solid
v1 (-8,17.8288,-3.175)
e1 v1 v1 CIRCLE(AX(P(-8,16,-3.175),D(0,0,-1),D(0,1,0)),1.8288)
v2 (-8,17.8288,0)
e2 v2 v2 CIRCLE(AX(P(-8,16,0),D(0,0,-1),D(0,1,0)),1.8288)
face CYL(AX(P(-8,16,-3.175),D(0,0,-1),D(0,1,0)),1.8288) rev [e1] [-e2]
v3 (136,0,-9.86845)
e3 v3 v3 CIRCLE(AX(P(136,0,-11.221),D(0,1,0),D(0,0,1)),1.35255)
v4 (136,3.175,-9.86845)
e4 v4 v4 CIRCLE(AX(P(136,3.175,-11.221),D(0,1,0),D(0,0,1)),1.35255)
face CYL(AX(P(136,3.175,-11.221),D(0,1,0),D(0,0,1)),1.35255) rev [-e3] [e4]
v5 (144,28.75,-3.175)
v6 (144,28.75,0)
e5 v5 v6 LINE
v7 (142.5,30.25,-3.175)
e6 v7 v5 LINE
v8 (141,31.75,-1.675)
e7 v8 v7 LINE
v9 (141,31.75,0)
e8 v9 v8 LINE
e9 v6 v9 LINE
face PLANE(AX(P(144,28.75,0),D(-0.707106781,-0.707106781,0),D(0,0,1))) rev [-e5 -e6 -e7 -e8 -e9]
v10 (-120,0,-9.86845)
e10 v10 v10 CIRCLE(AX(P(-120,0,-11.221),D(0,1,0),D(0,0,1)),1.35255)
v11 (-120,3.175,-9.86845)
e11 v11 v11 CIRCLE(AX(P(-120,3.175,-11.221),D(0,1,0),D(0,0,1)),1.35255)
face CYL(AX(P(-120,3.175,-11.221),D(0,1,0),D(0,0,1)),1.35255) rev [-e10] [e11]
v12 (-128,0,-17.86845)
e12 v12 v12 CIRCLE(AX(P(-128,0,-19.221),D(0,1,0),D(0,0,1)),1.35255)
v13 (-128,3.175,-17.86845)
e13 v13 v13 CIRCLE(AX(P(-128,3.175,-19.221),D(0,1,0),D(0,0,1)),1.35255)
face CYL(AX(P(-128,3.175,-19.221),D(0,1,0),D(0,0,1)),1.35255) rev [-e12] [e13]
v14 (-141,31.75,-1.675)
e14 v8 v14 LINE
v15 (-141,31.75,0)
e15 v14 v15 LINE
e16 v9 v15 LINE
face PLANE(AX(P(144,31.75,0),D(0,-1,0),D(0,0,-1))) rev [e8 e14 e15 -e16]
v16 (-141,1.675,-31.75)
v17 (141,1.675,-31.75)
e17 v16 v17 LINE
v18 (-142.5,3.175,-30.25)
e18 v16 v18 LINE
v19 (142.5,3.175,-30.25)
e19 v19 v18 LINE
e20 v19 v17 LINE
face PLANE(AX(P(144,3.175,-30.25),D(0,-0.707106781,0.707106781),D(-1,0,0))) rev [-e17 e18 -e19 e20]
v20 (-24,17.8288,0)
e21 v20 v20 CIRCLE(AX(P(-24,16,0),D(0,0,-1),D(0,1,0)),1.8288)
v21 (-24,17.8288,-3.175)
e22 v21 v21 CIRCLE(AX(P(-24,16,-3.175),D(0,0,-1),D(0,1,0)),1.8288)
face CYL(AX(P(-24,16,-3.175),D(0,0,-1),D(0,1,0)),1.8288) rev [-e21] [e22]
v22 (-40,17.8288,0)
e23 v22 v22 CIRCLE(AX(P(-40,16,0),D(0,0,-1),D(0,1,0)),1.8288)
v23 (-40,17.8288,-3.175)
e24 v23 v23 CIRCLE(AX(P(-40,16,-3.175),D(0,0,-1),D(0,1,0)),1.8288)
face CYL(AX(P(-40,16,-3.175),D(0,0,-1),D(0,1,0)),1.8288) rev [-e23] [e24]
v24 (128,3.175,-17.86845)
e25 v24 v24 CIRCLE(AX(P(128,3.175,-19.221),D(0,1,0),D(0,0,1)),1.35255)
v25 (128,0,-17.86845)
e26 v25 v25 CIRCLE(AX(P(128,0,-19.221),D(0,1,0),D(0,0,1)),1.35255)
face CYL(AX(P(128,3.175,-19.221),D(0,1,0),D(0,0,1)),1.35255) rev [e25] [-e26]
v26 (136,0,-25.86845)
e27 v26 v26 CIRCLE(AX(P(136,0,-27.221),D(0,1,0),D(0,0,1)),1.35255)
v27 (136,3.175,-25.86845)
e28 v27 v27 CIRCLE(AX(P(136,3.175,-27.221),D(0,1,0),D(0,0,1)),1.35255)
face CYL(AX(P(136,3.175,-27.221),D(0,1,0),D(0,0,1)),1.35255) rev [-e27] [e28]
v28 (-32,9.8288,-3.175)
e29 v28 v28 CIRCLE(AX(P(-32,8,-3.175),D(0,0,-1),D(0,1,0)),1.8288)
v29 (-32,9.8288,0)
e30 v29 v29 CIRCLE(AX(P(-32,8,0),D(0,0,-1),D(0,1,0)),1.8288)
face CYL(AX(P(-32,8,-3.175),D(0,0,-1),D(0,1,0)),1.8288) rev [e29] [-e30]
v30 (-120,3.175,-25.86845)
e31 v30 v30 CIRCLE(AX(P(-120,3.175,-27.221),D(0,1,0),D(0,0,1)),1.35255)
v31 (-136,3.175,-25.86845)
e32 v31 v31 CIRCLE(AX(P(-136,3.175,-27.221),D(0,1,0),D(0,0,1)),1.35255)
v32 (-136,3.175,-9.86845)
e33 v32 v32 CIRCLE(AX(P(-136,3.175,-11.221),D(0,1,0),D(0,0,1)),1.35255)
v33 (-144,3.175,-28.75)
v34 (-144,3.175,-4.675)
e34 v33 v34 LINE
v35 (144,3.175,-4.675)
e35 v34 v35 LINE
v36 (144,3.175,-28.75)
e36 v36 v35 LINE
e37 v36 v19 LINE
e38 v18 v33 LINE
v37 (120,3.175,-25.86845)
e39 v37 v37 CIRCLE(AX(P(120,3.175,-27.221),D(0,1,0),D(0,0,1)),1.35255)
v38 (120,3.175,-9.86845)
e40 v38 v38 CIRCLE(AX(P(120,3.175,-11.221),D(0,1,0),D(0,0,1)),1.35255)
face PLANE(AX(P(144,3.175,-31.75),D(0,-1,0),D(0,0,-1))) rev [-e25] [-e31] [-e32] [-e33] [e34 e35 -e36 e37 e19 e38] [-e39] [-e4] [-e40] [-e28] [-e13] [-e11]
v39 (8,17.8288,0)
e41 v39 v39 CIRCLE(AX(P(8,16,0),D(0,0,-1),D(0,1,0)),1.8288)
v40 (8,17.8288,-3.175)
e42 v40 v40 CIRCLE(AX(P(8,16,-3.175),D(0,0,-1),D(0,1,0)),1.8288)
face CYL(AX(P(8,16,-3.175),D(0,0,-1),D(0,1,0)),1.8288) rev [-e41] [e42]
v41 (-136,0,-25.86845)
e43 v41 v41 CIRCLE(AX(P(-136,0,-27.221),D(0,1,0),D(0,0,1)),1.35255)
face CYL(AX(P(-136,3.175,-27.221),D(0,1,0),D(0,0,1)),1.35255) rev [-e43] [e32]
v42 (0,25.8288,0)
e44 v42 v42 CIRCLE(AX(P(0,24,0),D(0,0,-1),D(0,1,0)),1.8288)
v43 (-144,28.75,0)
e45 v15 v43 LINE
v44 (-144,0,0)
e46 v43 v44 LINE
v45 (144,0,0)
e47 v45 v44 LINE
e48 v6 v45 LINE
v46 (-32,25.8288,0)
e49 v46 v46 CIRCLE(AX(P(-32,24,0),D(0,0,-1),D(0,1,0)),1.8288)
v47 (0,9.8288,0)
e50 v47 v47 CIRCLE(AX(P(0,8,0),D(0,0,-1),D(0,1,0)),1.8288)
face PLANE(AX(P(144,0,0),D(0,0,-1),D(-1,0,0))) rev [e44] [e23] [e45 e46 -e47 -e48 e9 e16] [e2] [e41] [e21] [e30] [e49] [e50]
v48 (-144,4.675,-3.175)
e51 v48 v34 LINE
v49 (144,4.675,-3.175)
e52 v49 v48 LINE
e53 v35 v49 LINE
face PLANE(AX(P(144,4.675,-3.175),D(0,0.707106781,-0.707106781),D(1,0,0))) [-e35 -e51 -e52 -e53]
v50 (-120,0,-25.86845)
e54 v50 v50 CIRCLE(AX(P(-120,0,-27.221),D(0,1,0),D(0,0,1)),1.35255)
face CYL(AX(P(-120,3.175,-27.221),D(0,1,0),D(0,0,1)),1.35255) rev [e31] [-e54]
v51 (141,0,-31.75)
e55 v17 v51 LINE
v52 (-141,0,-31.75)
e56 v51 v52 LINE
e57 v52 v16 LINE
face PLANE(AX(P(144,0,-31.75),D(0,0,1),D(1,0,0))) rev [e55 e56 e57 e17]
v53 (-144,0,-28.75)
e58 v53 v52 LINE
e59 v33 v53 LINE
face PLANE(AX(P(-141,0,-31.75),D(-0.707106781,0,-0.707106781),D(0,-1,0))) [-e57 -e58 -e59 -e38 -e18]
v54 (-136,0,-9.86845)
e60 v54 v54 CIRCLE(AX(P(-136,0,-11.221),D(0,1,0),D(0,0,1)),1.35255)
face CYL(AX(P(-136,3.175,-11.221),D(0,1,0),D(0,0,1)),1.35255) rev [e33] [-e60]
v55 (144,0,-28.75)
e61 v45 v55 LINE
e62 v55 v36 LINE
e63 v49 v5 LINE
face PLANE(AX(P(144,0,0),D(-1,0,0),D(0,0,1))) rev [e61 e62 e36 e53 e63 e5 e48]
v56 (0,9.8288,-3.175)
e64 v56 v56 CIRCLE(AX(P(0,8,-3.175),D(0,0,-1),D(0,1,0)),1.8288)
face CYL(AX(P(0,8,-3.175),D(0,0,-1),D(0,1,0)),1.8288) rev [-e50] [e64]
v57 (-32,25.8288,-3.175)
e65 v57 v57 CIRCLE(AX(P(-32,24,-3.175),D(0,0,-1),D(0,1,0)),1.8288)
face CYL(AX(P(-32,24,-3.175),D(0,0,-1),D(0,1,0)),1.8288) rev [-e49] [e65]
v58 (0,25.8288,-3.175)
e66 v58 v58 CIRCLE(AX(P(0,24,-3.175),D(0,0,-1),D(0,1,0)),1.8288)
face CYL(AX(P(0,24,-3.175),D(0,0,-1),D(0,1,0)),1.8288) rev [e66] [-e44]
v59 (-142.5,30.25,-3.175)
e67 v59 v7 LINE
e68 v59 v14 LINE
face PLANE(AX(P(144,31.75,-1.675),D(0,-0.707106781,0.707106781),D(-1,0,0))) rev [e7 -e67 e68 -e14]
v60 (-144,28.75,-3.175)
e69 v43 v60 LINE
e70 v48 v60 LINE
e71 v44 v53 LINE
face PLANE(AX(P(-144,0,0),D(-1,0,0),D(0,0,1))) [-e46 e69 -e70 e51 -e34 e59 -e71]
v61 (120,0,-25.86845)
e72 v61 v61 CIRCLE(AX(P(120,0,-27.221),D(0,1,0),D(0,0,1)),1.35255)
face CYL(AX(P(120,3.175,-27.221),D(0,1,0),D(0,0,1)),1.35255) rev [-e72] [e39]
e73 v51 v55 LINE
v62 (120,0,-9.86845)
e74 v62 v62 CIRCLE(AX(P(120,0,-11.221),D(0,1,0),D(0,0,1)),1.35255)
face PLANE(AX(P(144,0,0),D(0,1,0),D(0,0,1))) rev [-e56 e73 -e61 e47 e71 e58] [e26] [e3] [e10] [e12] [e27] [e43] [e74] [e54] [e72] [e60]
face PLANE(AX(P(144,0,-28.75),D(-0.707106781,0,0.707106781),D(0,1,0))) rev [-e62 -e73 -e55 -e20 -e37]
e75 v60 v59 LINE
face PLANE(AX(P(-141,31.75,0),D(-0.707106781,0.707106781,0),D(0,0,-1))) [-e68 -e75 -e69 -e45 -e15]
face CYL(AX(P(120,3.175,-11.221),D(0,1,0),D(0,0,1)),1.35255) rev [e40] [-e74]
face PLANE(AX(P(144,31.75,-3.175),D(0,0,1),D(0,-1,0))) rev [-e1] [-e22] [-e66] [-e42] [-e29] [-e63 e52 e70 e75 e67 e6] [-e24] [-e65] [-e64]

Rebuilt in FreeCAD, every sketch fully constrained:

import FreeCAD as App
import Part
import Sketcher
from FreeCAD import Vector
Q = App.Units.Quantity


def edges_at(feature, points):
    """Names of the edges that pass closest to the given points."""
    edges = feature.Shape.Edges
    near = lambda p: min(range(len(edges)), key=lambda i: edges[i].distToShape(Part.Vertex(*p))[0])
    return sorted({f"Edge{near(p) + 1}" for p in points})

doc = App.newDocument("Part")
body = doc.addObject("PartDesign::Body", "Body")

# Sketch on YZ plane
sketch1 = body.newObject("Sketcher::SketchObject", "Sketch")
sketch1.AttachmentSupport = (doc.getObject("YZ_Plane"), [""])
sketch1.MapMode = "FlatFace"
sketch1.addGeometry(Part.LineSegment(Vector(0, 0, 0), Vector(0, -31.8, 0)), False)
sketch1.addGeometry(Part.LineSegment(Vector(0, -31.8, 0), Vector(3.2, -31.8, 0)), False)
sketch1.addGeometry(Part.LineSegment(Vector(3.2, -31.8, 0), Vector(3.2, -3.2, 0)), False)
sketch1.addGeometry(Part.LineSegment(Vector(3.2, -3.2, 0), Vector(31.8, -3.2, 0)), False)
sketch1.addGeometry(Part.LineSegment(Vector(31.8, -3.2, 0), Vector(31.8, 0, 0)), False)
sketch1.addGeometry(Part.LineSegment(Vector(31.8, 0, 0), Vector(0, 0, 0)), False)
sketch1.addConstraint(Sketcher.Constraint("Coincident", 0, 2, 1, 1))
sketch1.addConstraint(Sketcher.Constraint("Coincident", 1, 2, 2, 1))
sketch1.addConstraint(Sketcher.Constraint("Coincident", 2, 2, 3, 1))
sketch1.addConstraint(Sketcher.Constraint("Coincident", 3, 2, 4, 1))
sketch1.addConstraint(Sketcher.Constraint("Coincident", 4, 2, 5, 1))
sketch1.addConstraint(Sketcher.Constraint("Coincident", 5, 2, 0, 1))
sketch1.addConstraint(Sketcher.Constraint("Vertical", 0))
sketch1.addConstraint(Sketcher.Constraint("Horizontal", 1))
sketch1.addConstraint(Sketcher.Constraint("Vertical", 2))
sketch1.addConstraint(Sketcher.Constraint("Horizontal", 3))
sketch1.addConstraint(Sketcher.Constraint("Vertical", 4))
sketch1.addConstraint(Sketcher.Constraint("Horizontal", 5))
sketch1.addConstraint(Sketcher.Constraint("Coincident", 5, 2, -1, 1))
sketch1.addConstraint(Sketcher.Constraint("Equal", 5, 0))
sketch1.addConstraint(Sketcher.Constraint("Equal", 3, 2))
sketch1.addConstraint(Sketcher.Constraint("DistanceX", 5, 2, 5, 1, Q("1.25 in")))
sketch1.addConstraint(Sketcher.Constraint("DistanceX", 1, 1, 1, 2, Q("0.125 in")))
pad1 = body.newObject("PartDesign::Pad", "Pad")
pad1.Profile = sketch1
pad1.Length = 288
pad1.Midplane = True
doc.recompute()

chamfer = body.newObject("PartDesign::Chamfer", "Chamfer")
chamfer.Base = (pad1, edges_at(pad1, [(0, 31.75, -3.175), (0, 3.175, -3.175), (0, 3.175, -31.75)]))
chamfer.Size = 1.5
doc.recompute()

chamfer2 = body.newObject("PartDesign::Chamfer", "Chamfer001")
chamfer2.Base = (chamfer, edges_at(chamfer, [
    (-144, 31.75, -0.838),
    (-144, 0.838, -31.75),
    (144, 0.838, -31.75),
    (144, 31.75, -0.838),
]))
chamfer2.Size = 3

# Sketch on XZ plane
sketch2 = body.newObject("Sketcher::SketchObject", "Sketch001")
sketch2.AttachmentSupport = (doc.getObject("XZ_Plane"), [""])
sketch2.MapMode = "FlatFace"
sketch2.AttachmentOffset = App.Placement(Vector(0, 0, -0.125 * 25.4), App.Rotation())
sketch2.addGeometry(Part.Circle(Vector(-136, -27.2, 0), Vector(0, 0, 1), 1.4), False)
sketch2.addGeometry(Part.Circle(Vector(-120, -27.2, 0), Vector(0, 0, 1), 1.4), False)
sketch2.addGeometry(Part.Circle(Vector(-128, -19.2, 0), Vector(0, 0, 1), 1.4), False)
sketch2.addGeometry(Part.Circle(Vector(-136, -11.2, 0), Vector(0, 0, 1), 1.4), False)
sketch2.addGeometry(Part.Circle(Vector(-120, -11.2, 0), Vector(0, 0, 1), 1.4), False)
sketch2.addGeometry(Part.Circle(Vector(120, -27.2, 0), Vector(0, 0, 1), 1.4), False)
sketch2.addGeometry(Part.Circle(Vector(136, -27.2, 0), Vector(0, 0, 1), 1.4), False)
sketch2.addGeometry(Part.Circle(Vector(128, -19.2, 0), Vector(0, 0, 1), 1.4), False)
sketch2.addGeometry(Part.Circle(Vector(120, -11.2, 0), Vector(0, 0, 1), 1.4), False)
sketch2.addGeometry(Part.Circle(Vector(136, -11.2, 0), Vector(0, 0, 1), 1.4), False)
sketch2.addConstraint(Sketcher.Constraint("Equal", 0, 1))
sketch2.addConstraint(Sketcher.Constraint("Equal", 1, 2))
sketch2.addConstraint(Sketcher.Constraint("Equal", 2, 3))
sketch2.addConstraint(Sketcher.Constraint("Equal", 3, 4))
sketch2.addConstraint(Sketcher.Constraint("Equal", 4, 5))
sketch2.addConstraint(Sketcher.Constraint("Equal", 5, 6))
sketch2.addConstraint(Sketcher.Constraint("Equal", 6, 7))
sketch2.addConstraint(Sketcher.Constraint("Equal", 7, 8))
sketch2.addConstraint(Sketcher.Constraint("Equal", 8, 9))
sketch2.addConstraint(Sketcher.Constraint("Symmetric", 1, 3, 5, 3, -2))
sketch2.addConstraint(Sketcher.Constraint("Symmetric", 0, 3, 6, 3, -2))
sketch2.addConstraint(Sketcher.Constraint("Symmetric", 2, 3, 7, 3, -2))
sketch2.addConstraint(Sketcher.Constraint("Symmetric", 4, 3, 8, 3, -2))
sketch2.addConstraint(Sketcher.Constraint("Symmetric", 3, 3, 9, 3, -2))
sketch2.addConstraint(Sketcher.Constraint("Horizontal", 0, 3, 1, 3))
sketch2.addConstraint(Sketcher.Constraint("Horizontal", 3, 3, 4, 3))
sketch2.addConstraint(Sketcher.Constraint("Vertical", 0, 3, 3, 3))
sketch2.addConstraint(Sketcher.Constraint("Vertical", 1, 3, 4, 3))
sketch2.addConstraint(Sketcher.Constraint("Diameter", 0, Q("0.1065 in")))
sketch2.addConstraint(Sketcher.Constraint("DistanceX", 0, 3, -1, 1, Q("136 mm")))
sketch2.addConstraint(Sketcher.Constraint("DistanceY", 0, 3, -1, 1, Q("27.221 mm")))
sketch2.addConstraint(Sketcher.Constraint("DistanceX", 1, 3, -1, 1, Q("120 mm")))
sketch2.addConstraint(Sketcher.Constraint("DistanceX", 2, 3, -1, 1, Q("128 mm")))
sketch2.addConstraint(Sketcher.Constraint("DistanceY", 2, 3, -1, 1, Q("19.221 mm")))
sketch2.addConstraint(Sketcher.Constraint("DistanceY", 3, 3, -1, 1, Q("11.221 mm")))
doc.recompute()
hole = body.newObject("PartDesign::Hole", "Hole")
hole.Profile = sketch2
hole.ThreadType = "None"
hole.Diameter = Q("0.1065 in")
hole.DepthType = "ThroughAll"
hole.Reversed = True

# Sketch on XY plane
sketch3 = body.newObject("Sketcher::SketchObject", "Sketch002")
sketch3.AttachmentSupport = (doc.getObject("XY_Plane"), [""])
sketch3.MapMode = "FlatFace"
sketch3.AttachmentOffset = App.Placement(Vector(0, 0, -0.125 * 25.4), App.Rotation())
sketch3.addGeometry(Part.Circle(Vector(0, 24, 0), Vector(0, 0, 1), 1.8), False)
sketch3.addGeometry(Part.Circle(Vector(8, 16, 0), Vector(0, 0, 1), 1.8), False)
sketch3.addGeometry(Part.Circle(Vector(-8, 16, 0), Vector(0, 0, 1), 1.8), False)
sketch3.addGeometry(Part.Circle(Vector(0, 8, 0), Vector(0, 0, 1), 1.8), False)
sketch3.addGeometry(Part.Circle(Vector(-24, 16, 0), Vector(0, 0, 1), 1.8), False)
sketch3.addGeometry(Part.Circle(Vector(-32, 24, 0), Vector(0, 0, 1), 1.8), False)
sketch3.addGeometry(Part.Circle(Vector(-40, 16, 0), Vector(0, 0, 1), 1.8), False)
sketch3.addGeometry(Part.Circle(Vector(-32, 8, 0), Vector(0, 0, 1), 1.8), False)
sketch3.addConstraint(Sketcher.Constraint("Equal", 0, 1))
sketch3.addConstraint(Sketcher.Constraint("Equal", 1, 2))
sketch3.addConstraint(Sketcher.Constraint("Equal", 2, 3))
sketch3.addConstraint(Sketcher.Constraint("Equal", 3, 4))
sketch3.addConstraint(Sketcher.Constraint("Equal", 4, 5))
sketch3.addConstraint(Sketcher.Constraint("Equal", 5, 6))
sketch3.addConstraint(Sketcher.Constraint("Equal", 6, 7))
sketch3.addConstraint(Sketcher.Constraint("Symmetric", 1, 3, 2, 3, -2))
sketch3.addConstraint(Sketcher.Constraint("PointOnObject", 0, 3, -2))
sketch3.addConstraint(Sketcher.Constraint("PointOnObject", 3, 3, -2))
sketch3.addConstraint(Sketcher.Constraint("Horizontal", 2, 3, 4, 3))
sketch3.addConstraint(Sketcher.Constraint("Horizontal", 0, 3, 5, 3))
sketch3.addConstraint(Sketcher.Constraint("Horizontal", 4, 3, 6, 3))
sketch3.addConstraint(Sketcher.Constraint("Horizontal", 3, 3, 7, 3))
sketch3.addConstraint(Sketcher.Constraint("Vertical", 5, 3, 7, 3))
sketch3.addConstraint(Sketcher.Constraint("Diameter", 0, Q("0.144 in")))
sketch3.addConstraint(Sketcher.Constraint("DistanceY", -1, 1, 0, 3, Q("24 mm")))
sketch3.addConstraint(Sketcher.Constraint("DistanceX", -1, 1, 1, 3, Q("8 mm")))
sketch3.addConstraint(Sketcher.Constraint("DistanceY", -1, 1, 1, 3, Q("16 mm")))
sketch3.addConstraint(Sketcher.Constraint("DistanceY", -1, 1, 3, 3, Q("8 mm")))
sketch3.addConstraint(Sketcher.Constraint("DistanceX", 4, 3, -1, 1, Q("24 mm")))
sketch3.addConstraint(Sketcher.Constraint("DistanceX", 5, 3, -1, 1, Q("32 mm")))
sketch3.addConstraint(Sketcher.Constraint("DistanceX", 6, 3, -1, 1, Q("40 mm")))
doc.recompute()
hole2 = body.newObject("PartDesign::Hole", "Hole001")
hole2.Profile = sketch3
hole2.ThreadType = "None"
hole2.Diameter = Q("0.144 in")
hole2.DepthType = "ThroughAll"
hole2.Reversed = True

doc.recompute()
